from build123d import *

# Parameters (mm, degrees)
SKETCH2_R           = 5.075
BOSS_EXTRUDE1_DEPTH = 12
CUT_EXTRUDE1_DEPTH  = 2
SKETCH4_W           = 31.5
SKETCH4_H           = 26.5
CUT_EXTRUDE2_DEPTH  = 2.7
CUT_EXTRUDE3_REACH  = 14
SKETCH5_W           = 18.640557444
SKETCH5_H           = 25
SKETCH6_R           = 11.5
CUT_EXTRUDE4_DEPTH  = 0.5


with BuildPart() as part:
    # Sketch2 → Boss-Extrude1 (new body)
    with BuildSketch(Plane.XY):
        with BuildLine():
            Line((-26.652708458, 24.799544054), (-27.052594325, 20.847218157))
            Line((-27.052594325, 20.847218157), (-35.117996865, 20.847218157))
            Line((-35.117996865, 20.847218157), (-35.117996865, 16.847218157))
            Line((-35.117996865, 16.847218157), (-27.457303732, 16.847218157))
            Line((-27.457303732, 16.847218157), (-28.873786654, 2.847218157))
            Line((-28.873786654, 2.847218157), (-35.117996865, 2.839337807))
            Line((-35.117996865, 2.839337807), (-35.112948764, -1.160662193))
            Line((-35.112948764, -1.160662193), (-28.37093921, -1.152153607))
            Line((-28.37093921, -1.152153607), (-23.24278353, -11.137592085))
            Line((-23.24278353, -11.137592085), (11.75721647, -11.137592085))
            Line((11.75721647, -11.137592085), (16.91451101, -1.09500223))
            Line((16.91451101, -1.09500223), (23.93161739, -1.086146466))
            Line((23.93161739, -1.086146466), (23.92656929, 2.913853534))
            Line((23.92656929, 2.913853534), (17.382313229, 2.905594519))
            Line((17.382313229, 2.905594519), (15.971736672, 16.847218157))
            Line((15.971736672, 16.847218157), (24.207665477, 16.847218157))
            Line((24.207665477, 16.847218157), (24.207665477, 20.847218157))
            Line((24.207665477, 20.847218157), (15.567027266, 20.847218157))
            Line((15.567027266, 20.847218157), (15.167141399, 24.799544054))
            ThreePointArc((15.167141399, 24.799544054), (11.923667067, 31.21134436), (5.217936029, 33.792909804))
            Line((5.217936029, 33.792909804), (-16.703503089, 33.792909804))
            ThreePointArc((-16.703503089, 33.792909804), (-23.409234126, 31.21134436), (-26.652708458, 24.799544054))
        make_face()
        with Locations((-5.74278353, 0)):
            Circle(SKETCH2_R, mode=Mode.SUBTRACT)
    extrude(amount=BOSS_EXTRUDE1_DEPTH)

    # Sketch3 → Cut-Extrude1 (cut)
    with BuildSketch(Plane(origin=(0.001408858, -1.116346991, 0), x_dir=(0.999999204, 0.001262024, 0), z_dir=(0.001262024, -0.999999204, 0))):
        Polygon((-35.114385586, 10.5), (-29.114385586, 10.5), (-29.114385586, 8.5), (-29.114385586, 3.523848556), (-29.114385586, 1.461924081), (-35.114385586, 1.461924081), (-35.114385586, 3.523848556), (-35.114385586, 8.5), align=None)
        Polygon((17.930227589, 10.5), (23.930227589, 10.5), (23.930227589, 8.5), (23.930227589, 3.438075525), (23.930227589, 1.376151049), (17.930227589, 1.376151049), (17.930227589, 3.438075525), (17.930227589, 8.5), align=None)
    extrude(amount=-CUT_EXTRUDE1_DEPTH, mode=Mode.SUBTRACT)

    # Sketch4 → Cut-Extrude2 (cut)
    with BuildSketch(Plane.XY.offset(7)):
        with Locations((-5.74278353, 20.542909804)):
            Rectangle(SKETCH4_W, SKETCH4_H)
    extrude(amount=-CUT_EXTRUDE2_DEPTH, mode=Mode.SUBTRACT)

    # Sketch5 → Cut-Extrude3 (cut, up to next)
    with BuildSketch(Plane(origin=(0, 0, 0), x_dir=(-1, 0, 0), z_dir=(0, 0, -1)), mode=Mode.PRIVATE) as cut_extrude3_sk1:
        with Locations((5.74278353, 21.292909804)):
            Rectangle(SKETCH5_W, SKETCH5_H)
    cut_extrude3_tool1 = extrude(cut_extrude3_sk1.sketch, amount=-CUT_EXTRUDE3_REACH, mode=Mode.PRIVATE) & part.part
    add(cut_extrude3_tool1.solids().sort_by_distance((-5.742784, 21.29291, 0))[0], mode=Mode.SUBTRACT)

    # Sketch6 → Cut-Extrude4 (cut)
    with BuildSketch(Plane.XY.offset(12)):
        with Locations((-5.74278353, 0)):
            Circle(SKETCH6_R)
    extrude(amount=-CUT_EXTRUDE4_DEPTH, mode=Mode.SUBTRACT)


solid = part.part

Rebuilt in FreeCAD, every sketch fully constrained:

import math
import FreeCAD as App
import Part
import Sketcher


def add_polygon(sketch, points):
    """Adds a closed chain of lines whose ends are joined by coincident constraints."""
    first, n = sketch.GeometryCount, len(points)
    for a, b in zip(points, points[1:] + points[:1]):
        sketch.addGeometry(Part.LineSegment(App.Vector(*a, 0), App.Vector(*b, 0)), False)
    for i in range(n):
        sketch.addConstraint(Sketcher.Constraint("Coincident", first + i, 2, first + (i + 1) % n, 1))

doc = App.newDocument("Part")
body = doc.addObject("PartDesign::Body", "Body")

# Sketch on XY plane
sketch1 = body.newObject("Sketcher::SketchObject", "Sketch")
sketch1.AttachmentSupport = (doc.getObject("XY_Plane"), [""])
sketch1.MapMode = "FlatFace"
sketch1.addGeometry([
    Part.LineSegment(App.Vector(-26.7, 24.8, 0), App.Vector(-27.1, 20.8, 0)),  # 0
    Part.LineSegment(App.Vector(-27.1, 20.8, 0), App.Vector(-35.1, 20.8, 0)),  # 1
    Part.LineSegment(App.Vector(-35.1, 20.8, 0), App.Vector(-35.1, 16.8, 0)),  # 2
    Part.LineSegment(App.Vector(-35.1, 16.8, 0), App.Vector(-27.5, 16.8, 0)),  # 3
    Part.LineSegment(App.Vector(-27.5, 16.8, 0), App.Vector(-28.9, 2.8, 0)),  # 4
    Part.LineSegment(App.Vector(-28.9, 2.8, 0), App.Vector(-35.1, 2.8, 0)),  # 5
    Part.LineSegment(App.Vector(-35.1, 2.8, 0), App.Vector(-35.1, -1.2, 0)),  # 6
    Part.LineSegment(App.Vector(-35.1, -1.2, 0), App.Vector(-28.4, -1.2, 0)),  # 7
    Part.LineSegment(App.Vector(-28.4, -1.2, 0), App.Vector(-23.2, -11.1, 0)),  # 8
    Part.LineSegment(App.Vector(-23.2, -11.1, 0), App.Vector(11.8, -11.1, 0)),  # 9
    Part.LineSegment(App.Vector(11.8, -11.1, 0), App.Vector(16.9, -1.1, 0)),  # 10
    Part.LineSegment(App.Vector(16.9, -1.1, 0), App.Vector(23.9, -1.1, 0)),  # 11
    Part.LineSegment(App.Vector(23.9, -1.1, 0), App.Vector(23.9, 2.9, 0)),  # 12
    Part.LineSegment(App.Vector(23.9, 2.9, 0), App.Vector(17.4, 2.9, 0)),  # 13
    Part.LineSegment(App.Vector(17.4, 2.9, 0), App.Vector(16, 16.8, 0)),  # 14
    Part.LineSegment(App.Vector(16, 16.8, 0), App.Vector(24.2, 16.8, 0)),  # 15
    Part.LineSegment(App.Vector(24.2, 16.8, 0), App.Vector(24.2, 20.8, 0)),  # 16
    Part.LineSegment(App.Vector(24.2, 20.8, 0), App.Vector(15.6, 20.8, 0)),  # 17
    Part.LineSegment(App.Vector(15.6, 20.8, 0), App.Vector(15.2, 24.8, 0)),  # 18
    Part.ArcOfCircle(Part.Circle(App.Vector(5.2, 23.8, 0), App.Vector(0, 0, 1), 10), math.radians(6), math.radians(90)),  # 19
    Part.LineSegment(App.Vector(5.2, 33.8, 0), App.Vector(-16.7, 33.8, 0)),  # 20
    Part.ArcOfCircle(Part.Circle(App.Vector(-16.7, 23.8, 0), App.Vector(0, 0, 1), 10), math.radians(90), math.radians(174)),  # 21
    Part.Circle(App.Vector(-5.7, 0, 0), App.Vector(0, 0, 1), 5.1),  # 22
], False)
sketch1.addConstraint([
    Sketcher.Constraint("Coincident", 0, 2, 1, 1),
    Sketcher.Constraint("Coincident", 1, 2, 2, 1),
    Sketcher.Constraint("Coincident", 2, 2, 3, 1),
    Sketcher.Constraint("Coincident", 3, 2, 4, 1),
    Sketcher.Constraint("Coincident", 4, 2, 5, 1),
    Sketcher.Constraint("Coincident", 5, 2, 6, 1),
    Sketcher.Constraint("Coincident", 6, 2, 7, 1),
    Sketcher.Constraint("Coincident", 7, 2, 8, 1),
    Sketcher.Constraint("Coincident", 8, 2, 9, 1),
    Sketcher.Constraint("Coincident", 9, 2, 10, 1),
    Sketcher.Constraint("Coincident", 10, 2, 11, 1),
    Sketcher.Constraint("Coincident", 11, 2, 12, 1),
    Sketcher.Constraint("Coincident", 12, 2, 13, 1),
    Sketcher.Constraint("Coincident", 13, 2, 14, 1),
    Sketcher.Constraint("Coincident", 14, 2, 15, 1),
    Sketcher.Constraint("Coincident", 15, 2, 16, 1),
    Sketcher.Constraint("Coincident", 16, 2, 17, 1),
    Sketcher.Constraint("Coincident", 17, 2, 18, 1),
    Sketcher.Constraint("Tangent", 18, 2, 19, 1),
    Sketcher.Constraint("Tangent", 19, 2, 20, 1),
    Sketcher.Constraint("Tangent", 20, 2, 21, 1),
    Sketcher.Constraint("Tangent", 21, 2, 0, 1),
    Sketcher.Constraint("Horizontal", 1),
    Sketcher.Constraint("Vertical", 2),
    Sketcher.Constraint("Horizontal", 3),
    Sketcher.Constraint("Horizontal", 9),
    Sketcher.Constraint("Horizontal", 15),
    Sketcher.Constraint("Vertical", 16),
    Sketcher.Constraint("Horizontal", 17),
    Sketcher.Constraint("Horizontal", 20),
    Sketcher.Constraint("Equal", 19, 21),
    Sketcher.Constraint("PointOnObject", 22, 3, -1),
    Sketcher.Constraint("Parallel", 0, 4),
    Sketcher.Constraint("Perpendicular", 5, 6),
    Sketcher.Constraint("Perpendicular", 6, 7),
    Sketcher.Constraint("Parallel", 7, 11),
    Sketcher.Constraint("Perpendicular", 11, 12),
    Sketcher.Constraint("Perpendicular", 12, 13),
    Sketcher.Constraint("Parallel", 14, 18),
    Sketcher.Constraint("Horizontal", 3, 2, 14, 2),
    Sketcher.Constraint("Horizontal", 1, 2, 16, 2),
    Sketcher.Constraint("Horizontal", 18, 2, 21, 2),
    Sketcher.Constraint("Vertical", 2, 2, 5, 2),
    Sketcher.Constraint("Equal", 6, 12),
    Sketcher.Constraint("Radius", 19, 10.0),
    Sketcher.Constraint("Diameter", 22, 10.15),
    Sketcher.Constraint("DistanceX", 9, 1, 9, 2, 35.0),
    Sketcher.Constraint("DistanceY", 2, 2, 2, 1, 4.0),
    Sketcher.Constraint("DistanceY", 4, 2, 3, 2, 14.0),
    Sketcher.Constraint("DistanceY", 6, 2, 5, 2, 4.0),
    Sketcher.Constraint("DistanceX", 8, 2, 22, 3, 17.5),
    Sketcher.Constraint("Distance", 14, 14.012801),
    Sketcher.Constraint("DistanceX", 15, 1, 15, 2, 8.235929),
    Sketcher.Constraint("DistanceX", 17, 2, 17, 1, 8.640638),
    Sketcher.Constraint("DistanceX", 20, 2, 20, 1, 21.921439),
    Sketcher.Constraint("DistanceX", 3, 2, 21, 3, 10.753801),
    Sketcher.Constraint("DistanceY", 9, 2, 19, 3, 34.930502),
    Sketcher.Constraint("DistanceX", 9, 2, 11, 2, 12.174401),
    Sketcher.Constraint("DistanceX", 19, 3, 14, 2, 10.753801),
    Sketcher.Constraint("Distance", 11, 7.017112),
    Sketcher.Constraint("Distance", 13, 6.544261),
    Sketcher.Constraint("DistanceX", 1, 2, 1, 1, 8.065403),
    Sketcher.Constraint("DistanceY", -1, 1, 19, 3, 23.79291),
    Sketcher.Constraint("DistanceY", -1, 1, 0, 2, 20.847218),
    Sketcher.Constraint("DistanceX", 6, 2, -1, 1, 35.112949),
    Sketcher.Constraint("DistanceX", 7, 2, -1, 1, 28.370939),
    Sketcher.Constraint("DistanceX", -1, 1, 12, 2, 23.926569),
])
pad1 = body.newObject("PartDesign::Pad", "Pad")
pad1.Profile = sketch1
pad1.Length = 12

# Sketch on an angled plane
sketch2 = body.newObject("Sketcher::SketchObject", "Sketch001")
sketch2.Placement = App.Placement(App.Vector(0.001409, -1.116347, 0), App.Rotation(App.Vector(0.999999204, 0.001262024, 0), App.Vector(0, 0, 1.000000001), App.Vector(0.001262024, -0.999999204, 0), "ZXY"))
add_polygon(sketch2, [(-29, 11), (-35, 11), (-35, 1), (-29, 1)])  # lines 0-3
add_polygon(sketch2, [(24, 11), (18, 11), (18, 1), (24, 1)])  # lines 4-7
sketch2.addConstraint([
    Sketcher.Constraint("Horizontal", 0),
    Sketcher.Constraint("Vertical", 1),
    Sketcher.Constraint("Horizontal", 2),
    Sketcher.Constraint("Vertical", 3),
    Sketcher.Constraint("Horizontal", 4),
    Sketcher.Constraint("Vertical", 5),
    Sketcher.Constraint("Horizontal", 6),
    Sketcher.Constraint("Vertical", 7),
    Sketcher.Constraint("Horizontal", 3, 2, 4, 2),
    Sketcher.Constraint("Equal", 2, 4),
    Sketcher.Constraint("DistanceX", 0, 2, 0, 1, 6.0),
    Sketcher.Constraint("DistanceY", -1, 1, 0, 2, 10.5),
    Sketcher.Constraint("DistanceY", 5, 2, 5, 1, 9.123849),
    Sketcher.Constraint("DistanceY", 1, 2, 1, 1, 9.038076),
    Sketcher.Constraint("DistanceX", 0, 2, -1, 1, 35.114386),
    Sketcher.Constraint("DistanceX", -1, 1, 4, 2, 17.930228),
])
pocket1 = body.newObject("PartDesign::Pocket", "Pocket")
pocket1.Profile = sketch2
pocket1.Length = 2

# Sketch on XY plane
sketch3 = body.newObject("Sketcher::SketchObject", "Sketch002")
sketch3.AttachmentSupport = (doc.getObject("XY_Plane"), [""])
sketch3.MapMode = "FlatFace"
sketch3.AttachmentOffset = App.Placement(App.Vector(0, 0, 7), App.Rotation())
add_polygon(sketch3, [(-21, 34), (-21, 7), (10, 7), (10, 34)])  # lines 0-3
sketch3.addConstraint([
    Sketcher.Constraint("Vertical", 0),
    Sketcher.Constraint("Horizontal", 1),
    Sketcher.Constraint("Vertical", 2),
    Sketcher.Constraint("Horizontal", 3),
    Sketcher.Constraint("DistanceX", 1, 1, 1, 2, 31.5),
    Sketcher.Constraint("DistanceY", 0, 2, 0, 1, 26.5),
    Sketcher.Constraint("DistanceY", -1, 1, 0, 2, 7.29291),
    Sketcher.Constraint("DistanceX", 0, 2, -1, 1, 21.492784),
])
pocket2 = body.newObject("PartDesign::Pocket", "Pocket001")
pocket2.Profile = sketch3
pocket2.Length = 2.7

# Sketch on XY plane
sketch4 = body.newObject("Sketcher::SketchObject", "Sketch003")
sketch4.AttachmentSupport = (doc.getObject("XY_Plane"), [""])
sketch4.MapMode = "FlatFace"
add_polygon(sketch4, [(4, 34), (4, 9), (-15, 9), (-15, 34)])  # lines 0-3
sketch4.addConstraint([
    Sketcher.Constraint("Vertical", 0),
    Sketcher.Constraint("Horizontal", 1),
    Sketcher.Constraint("Vertical", 2),
    Sketcher.Constraint("Horizontal", 3),
    Sketcher.Constraint("DistanceY", 0, 2, 0, 1, 25.0),
    Sketcher.Constraint("DistanceX", 1, 2, 1, 1, 18.640557),
    Sketcher.Constraint("DistanceY", -1, 1, 0, 2, 8.79291),
    Sketcher.Constraint("DistanceX", -1, 1, 0, 2, 3.577495),
])
pocket3 = body.newObject("PartDesign::Pocket", "Pocket002")
pocket3.Profile = sketch4
pocket3.Type = "UpToFirst"
pocket3.Reversed = True

# Sketch on XY plane
sketch5 = body.newObject("Sketcher::SketchObject", "Sketch004")
sketch5.AttachmentSupport = (doc.getObject("XY_Plane"), [""])
sketch5.MapMode = "FlatFace"
sketch5.AttachmentOffset = App.Placement(App.Vector(0, 0, 12), App.Rotation())
sketch5.addGeometry(Part.Circle(App.Vector(-6, 0, 0), App.Vector(0, 0, 1), 12), False)
sketch5.addConstraint([
    Sketcher.Constraint("PointOnObject", 0, 3, -1),
    Sketcher.Constraint("Diameter", 0, 23.0),
    Sketcher.Constraint("DistanceX", 0, 3, -1, 1, 5.742784),
])
pocket4 = body.newObject("PartDesign::Pocket", "Pocket003")
pocket4.Profile = sketch5
pocket4.Length = 0.5

doc.recompute()
